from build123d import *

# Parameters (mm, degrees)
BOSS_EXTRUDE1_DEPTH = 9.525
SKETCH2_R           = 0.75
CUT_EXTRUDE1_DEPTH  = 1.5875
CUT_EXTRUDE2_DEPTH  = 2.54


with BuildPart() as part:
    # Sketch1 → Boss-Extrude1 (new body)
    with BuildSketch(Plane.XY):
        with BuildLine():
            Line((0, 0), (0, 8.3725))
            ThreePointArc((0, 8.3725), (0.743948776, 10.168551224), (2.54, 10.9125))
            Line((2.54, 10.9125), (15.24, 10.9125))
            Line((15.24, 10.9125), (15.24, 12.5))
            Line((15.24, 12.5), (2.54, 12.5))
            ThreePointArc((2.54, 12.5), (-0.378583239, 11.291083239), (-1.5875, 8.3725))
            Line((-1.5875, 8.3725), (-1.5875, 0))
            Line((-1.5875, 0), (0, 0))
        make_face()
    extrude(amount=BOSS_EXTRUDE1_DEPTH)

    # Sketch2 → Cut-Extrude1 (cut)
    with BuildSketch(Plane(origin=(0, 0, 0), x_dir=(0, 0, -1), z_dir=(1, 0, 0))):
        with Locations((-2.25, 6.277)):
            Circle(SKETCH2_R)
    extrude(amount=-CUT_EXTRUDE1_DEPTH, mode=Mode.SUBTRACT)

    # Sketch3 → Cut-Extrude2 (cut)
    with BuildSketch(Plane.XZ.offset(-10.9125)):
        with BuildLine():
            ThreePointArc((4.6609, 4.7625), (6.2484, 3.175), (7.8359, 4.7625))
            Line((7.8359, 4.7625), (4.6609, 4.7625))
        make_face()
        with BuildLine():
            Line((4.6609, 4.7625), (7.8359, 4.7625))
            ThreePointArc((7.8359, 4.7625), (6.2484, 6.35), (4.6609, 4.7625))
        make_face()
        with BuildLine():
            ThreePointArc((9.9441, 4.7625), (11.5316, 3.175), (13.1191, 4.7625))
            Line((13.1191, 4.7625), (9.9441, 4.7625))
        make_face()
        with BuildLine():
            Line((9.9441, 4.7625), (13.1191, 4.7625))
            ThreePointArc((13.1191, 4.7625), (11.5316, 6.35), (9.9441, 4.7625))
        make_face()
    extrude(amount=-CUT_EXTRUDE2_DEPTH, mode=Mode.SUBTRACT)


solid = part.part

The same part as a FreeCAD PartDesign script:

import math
import FreeCAD as App
import Part
import Sketcher

V = App.Vector
Q = App.Units.Quantity

doc = App.newDocument("Part")
body = doc.addObject("PartDesign::Body", "Body")

# Sketch on XY plane
sketch1 = body.newObject("Sketcher::SketchObject", "Sketch")
sketch1.AttachmentSupport = (doc.getObject("XY_Plane"), [""])
sketch1.MapMode = "FlatFace"
sketch1.addGeometry(Part.LineSegment(V(0, 0, 0), V(0, 8.4, 0)), False)
sketch1.addGeometry(Part.ArcOfCircle(Part.Circle(V(2.5, 8.4, 0), V(0, 0, 1), 2.5), math.radians(90), math.radians(180)), False)
sketch1.addGeometry(Part.LineSegment(V(2.5, 10.9, 0), V(15.2, 10.9, 0)), False)
sketch1.addGeometry(Part.LineSegment(V(15.2, 10.9, 0), V(15.2, 12.5, 0)), False)
sketch1.addGeometry(Part.LineSegment(V(15.2, 12.5, 0), V(2.5, 12.5, 0)), False)
sketch1.addGeometry(Part.ArcOfCircle(Part.Circle(V(2.5, 8.4, 0), V(0, 0, 1), 4.1), math.radians(90), math.radians(180)), False)
sketch1.addGeometry(Part.LineSegment(V(-1.6, 8.4, 0), V(-1.6, 0, 0)), False)
sketch1.addGeometry(Part.LineSegment(V(-1.6, 0, 0), V(0, 0, 0)), False)
sketch1.addConstraint(Sketcher.Constraint("Tangent", 0, 2, 1, 2))
sketch1.addConstraint(Sketcher.Constraint("Tangent", 1, 1, 2, 1))
sketch1.addConstraint(Sketcher.Constraint("Coincident", 2, 2, 3, 1))
sketch1.addConstraint(Sketcher.Constraint("Coincident", 3, 2, 4, 1))
sketch1.addConstraint(Sketcher.Constraint("Tangent", 4, 2, 5, 1))
sketch1.addConstraint(Sketcher.Constraint("Tangent", 5, 2, 6, 1))
sketch1.addConstraint(Sketcher.Constraint("Coincident", 6, 2, 7, 1))
sketch1.addConstraint(Sketcher.Constraint("Coincident", 7, 2, 0, 1))
sketch1.addConstraint(Sketcher.Constraint("Vertical", 0))
sketch1.addConstraint(Sketcher.Constraint("Horizontal", 2))
sketch1.addConstraint(Sketcher.Constraint("Vertical", 3))
sketch1.addConstraint(Sketcher.Constraint("Horizontal", 4))
sketch1.addConstraint(Sketcher.Constraint("Vertical", 6))
sketch1.addConstraint(Sketcher.Constraint("Horizontal", 7))
sketch1.addConstraint(Sketcher.Constraint("Coincident", 7, 2, -1, 1))
sketch1.addConstraint(Sketcher.Constraint("Coincident", 5, 3, 1, 3))
sketch1.addConstraint(Sketcher.Constraint("Radius", 1, Q("0.1 in")))
sketch1.addConstraint(Sketcher.Constraint("DistanceX", 2, 1, 2, 2, Q("0.5 in")))
sketch1.addConstraint(Sketcher.Constraint("Radius", 5, Q("0.1625 in")))
sketch1.addConstraint(Sketcher.Constraint("DistanceY", 0, 1, 0, 2, 8.3725))
pad1 = body.newObject("PartDesign::Pad", "Pad")
pad1.Profile = sketch1
pad1.Length = Q("0.375 in")

# Sketch on YZ plane
sketch2 = body.newObject("Sketcher::SketchObject", "Sketch001")
sketch2.AttachmentSupport = (doc.getObject("YZ_Plane"), [""])
sketch2.MapMode = "FlatFace"
sketch2.addGeometry(Part.Circle(V(6.3, 2.2, 0), V(0, 0, 1), 0.8), False)
sketch2.addConstraint(Sketcher.Constraint("Diameter", 0, 1.5))
sketch2.addConstraint(Sketcher.Constraint("DistanceX", -1, 1, 0, 3, 6.277))
sketch2.addConstraint(Sketcher.Constraint("DistanceY", -1, 1, 0, 3, 2.25))
pocket1 = body.newObject("PartDesign::Pocket", "Pocket")
pocket1.Profile = sketch2
pocket1.Length = Q("0.0625 in")

# Sketch on XZ plane
sketch3 = body.newObject("Sketcher::SketchObject", "Sketch002")
sketch3.AttachmentSupport = (doc.getObject("XZ_Plane"), [""])
sketch3.MapMode = "FlatFace"
sketch3.AttachmentOffset = App.Placement(V(0, 0, -10.9125), App.Rotation())
sketch3.addGeometry(Part.Circle(V(6.2, 4.8, 0), V(0, 0, 1), 1.6), False)
sketch3.addGeometry(Part.Circle(V(11.5, 4.8, 0), V(0, 0, 1), 1.6), False)
sketch3.addConstraint(Sketcher.Constraint("Equal", 0, 1))
sketch3.addConstraint(Sketcher.Constraint("Horizontal", 0, 3, 1, 3))
sketch3.addConstraint(Sketcher.Constraint("Diameter", 0, Q("0.125 in")))
sketch3.addConstraint(Sketcher.Constraint("DistanceX", -1, 1, 0, 3, Q("0.246 in")))
sketch3.addConstraint(Sketcher.Constraint("DistanceY", -1, 1, 0, 3, Q("0.1875 in")))
sketch3.addConstraint(Sketcher.Constraint("DistanceX", -1, 1, 1, 3, Q("0.454 in")))
pocket2 = body.newObject("PartDesign::Pocket", "Pocket001")
pocket2.Profile = sketch3
pocket2.Length = Q("0.1 in")

doc.recompute()
